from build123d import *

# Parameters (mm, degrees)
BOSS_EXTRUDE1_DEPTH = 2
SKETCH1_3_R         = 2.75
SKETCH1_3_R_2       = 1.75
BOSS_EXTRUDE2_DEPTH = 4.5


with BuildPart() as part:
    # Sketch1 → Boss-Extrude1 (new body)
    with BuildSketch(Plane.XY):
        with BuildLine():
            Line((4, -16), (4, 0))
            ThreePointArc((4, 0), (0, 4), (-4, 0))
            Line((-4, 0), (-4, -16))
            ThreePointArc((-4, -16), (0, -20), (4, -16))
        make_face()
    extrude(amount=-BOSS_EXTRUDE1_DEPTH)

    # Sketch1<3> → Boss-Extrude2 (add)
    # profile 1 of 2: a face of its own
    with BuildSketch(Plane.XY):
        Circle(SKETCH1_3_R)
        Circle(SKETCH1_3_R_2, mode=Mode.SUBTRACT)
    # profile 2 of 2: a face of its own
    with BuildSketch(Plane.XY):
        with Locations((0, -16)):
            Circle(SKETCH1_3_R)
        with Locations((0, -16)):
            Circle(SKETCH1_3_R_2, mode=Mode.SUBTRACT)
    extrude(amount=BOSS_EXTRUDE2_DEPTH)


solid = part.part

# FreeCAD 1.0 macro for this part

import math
import FreeCAD as App
import Part
import Sketcher
from FreeCAD import Vector

doc = App.newDocument("Part")
body = doc.addObject("PartDesign::Body", "Body")

# Sketch on XY plane
sketch1 = body.newObject("Sketcher::SketchObject", "Sketch")
sketch1.AttachmentSupport = (doc.getObject("XY_Plane"), [""])
sketch1.MapMode = "FlatFace"
sketch1.addGeometry(Part.LineSegment(Vector(4, -16, 0), Vector(4, 0, 0)), False)
sketch1.addGeometry(Part.ArcOfCircle(Part.Circle(Vector(0, 0, 0), Vector(0, 0, 1), 4), math.radians(0), math.radians(180)), False)
sketch1.addGeometry(Part.LineSegment(Vector(-4, 0, 0), Vector(-4, -16, 0)), False)
sketch1.addGeometry(Part.ArcOfCircle(Part.Circle(Vector(0, -16, 0), Vector(0, 0, 1), 4), math.radians(180), math.radians(360)), False)
sketch1.addConstraint(Sketcher.Constraint("Tangent", 0, 2, 1, 1))
sketch1.addConstraint(Sketcher.Constraint("Tangent", 1, 2, 2, 1))
sketch1.addConstraint(Sketcher.Constraint("Tangent", 2, 2, 3, 1))
sketch1.addConstraint(Sketcher.Constraint("Tangent", 3, 2, 0, 1))
sketch1.addConstraint(Sketcher.Constraint("Vertical", 0))
sketch1.addConstraint(Sketcher.Constraint("Vertical", 2))
sketch1.addConstraint(Sketcher.Constraint("Coincident", 1, 3, -1, 1))
sketch1.addConstraint(Sketcher.Constraint("Radius", 1, 4.0))
sketch1.addConstraint(Sketcher.Constraint("DistanceY", 0, 1, 0, 2, 16.0))
pad1 = body.newObject("PartDesign::Pad", "Pad")
pad1.Profile = sketch1
pad1.Length = 2
pad1.Reversed = True

# Sketch on XY plane
sketch2 = body.newObject("Sketcher::SketchObject", "Sketch001")
sketch2.AttachmentSupport = (doc.getObject("XY_Plane"), [""])
sketch2.MapMode = "FlatFace"
sketch2.addGeometry(Part.Circle(Vector(0, 0, 0), Vector(0, 0, 1), 2.8), False)
sketch2.addGeometry(Part.Circle(Vector(0, 0, 0), Vector(0, 0, 1), 1.8), False)
sketch2.addGeometry(Part.Circle(Vector(0, -16, 0), Vector(0, 0, 1), 2.8), False)
sketch2.addGeometry(Part.Circle(Vector(0, -16, 0), Vector(0, 0, 1), 1.8), False)
sketch2.addConstraint(Sketcher.Constraint("Coincident", 0, 3, -1, 1))
sketch2.addConstraint(Sketcher.Constraint("Coincident", 1, 3, -1, 1))
sketch2.addConstraint(Sketcher.Constraint("Coincident", 3, 3, 2, 3))
sketch2.addConstraint(Sketcher.Constraint("Equal", 0, 2))
sketch2.addConstraint(Sketcher.Constraint("Equal", 1, 3))
sketch2.addConstraint(Sketcher.Constraint("PointOnObject", 2, 3, -2))
sketch2.addConstraint(Sketcher.Constraint("Diameter", 0, 5.5))
sketch2.addConstraint(Sketcher.Constraint("Diameter", 1, 3.5))
sketch2.addConstraint(Sketcher.Constraint("DistanceY", 2, 3, -1, 1, 16.0))
pad2 = body.newObject("PartDesign::Pad", "Pad001")
pad2.Profile = sketch2
pad2.Length = 4.5

doc.recompute()
